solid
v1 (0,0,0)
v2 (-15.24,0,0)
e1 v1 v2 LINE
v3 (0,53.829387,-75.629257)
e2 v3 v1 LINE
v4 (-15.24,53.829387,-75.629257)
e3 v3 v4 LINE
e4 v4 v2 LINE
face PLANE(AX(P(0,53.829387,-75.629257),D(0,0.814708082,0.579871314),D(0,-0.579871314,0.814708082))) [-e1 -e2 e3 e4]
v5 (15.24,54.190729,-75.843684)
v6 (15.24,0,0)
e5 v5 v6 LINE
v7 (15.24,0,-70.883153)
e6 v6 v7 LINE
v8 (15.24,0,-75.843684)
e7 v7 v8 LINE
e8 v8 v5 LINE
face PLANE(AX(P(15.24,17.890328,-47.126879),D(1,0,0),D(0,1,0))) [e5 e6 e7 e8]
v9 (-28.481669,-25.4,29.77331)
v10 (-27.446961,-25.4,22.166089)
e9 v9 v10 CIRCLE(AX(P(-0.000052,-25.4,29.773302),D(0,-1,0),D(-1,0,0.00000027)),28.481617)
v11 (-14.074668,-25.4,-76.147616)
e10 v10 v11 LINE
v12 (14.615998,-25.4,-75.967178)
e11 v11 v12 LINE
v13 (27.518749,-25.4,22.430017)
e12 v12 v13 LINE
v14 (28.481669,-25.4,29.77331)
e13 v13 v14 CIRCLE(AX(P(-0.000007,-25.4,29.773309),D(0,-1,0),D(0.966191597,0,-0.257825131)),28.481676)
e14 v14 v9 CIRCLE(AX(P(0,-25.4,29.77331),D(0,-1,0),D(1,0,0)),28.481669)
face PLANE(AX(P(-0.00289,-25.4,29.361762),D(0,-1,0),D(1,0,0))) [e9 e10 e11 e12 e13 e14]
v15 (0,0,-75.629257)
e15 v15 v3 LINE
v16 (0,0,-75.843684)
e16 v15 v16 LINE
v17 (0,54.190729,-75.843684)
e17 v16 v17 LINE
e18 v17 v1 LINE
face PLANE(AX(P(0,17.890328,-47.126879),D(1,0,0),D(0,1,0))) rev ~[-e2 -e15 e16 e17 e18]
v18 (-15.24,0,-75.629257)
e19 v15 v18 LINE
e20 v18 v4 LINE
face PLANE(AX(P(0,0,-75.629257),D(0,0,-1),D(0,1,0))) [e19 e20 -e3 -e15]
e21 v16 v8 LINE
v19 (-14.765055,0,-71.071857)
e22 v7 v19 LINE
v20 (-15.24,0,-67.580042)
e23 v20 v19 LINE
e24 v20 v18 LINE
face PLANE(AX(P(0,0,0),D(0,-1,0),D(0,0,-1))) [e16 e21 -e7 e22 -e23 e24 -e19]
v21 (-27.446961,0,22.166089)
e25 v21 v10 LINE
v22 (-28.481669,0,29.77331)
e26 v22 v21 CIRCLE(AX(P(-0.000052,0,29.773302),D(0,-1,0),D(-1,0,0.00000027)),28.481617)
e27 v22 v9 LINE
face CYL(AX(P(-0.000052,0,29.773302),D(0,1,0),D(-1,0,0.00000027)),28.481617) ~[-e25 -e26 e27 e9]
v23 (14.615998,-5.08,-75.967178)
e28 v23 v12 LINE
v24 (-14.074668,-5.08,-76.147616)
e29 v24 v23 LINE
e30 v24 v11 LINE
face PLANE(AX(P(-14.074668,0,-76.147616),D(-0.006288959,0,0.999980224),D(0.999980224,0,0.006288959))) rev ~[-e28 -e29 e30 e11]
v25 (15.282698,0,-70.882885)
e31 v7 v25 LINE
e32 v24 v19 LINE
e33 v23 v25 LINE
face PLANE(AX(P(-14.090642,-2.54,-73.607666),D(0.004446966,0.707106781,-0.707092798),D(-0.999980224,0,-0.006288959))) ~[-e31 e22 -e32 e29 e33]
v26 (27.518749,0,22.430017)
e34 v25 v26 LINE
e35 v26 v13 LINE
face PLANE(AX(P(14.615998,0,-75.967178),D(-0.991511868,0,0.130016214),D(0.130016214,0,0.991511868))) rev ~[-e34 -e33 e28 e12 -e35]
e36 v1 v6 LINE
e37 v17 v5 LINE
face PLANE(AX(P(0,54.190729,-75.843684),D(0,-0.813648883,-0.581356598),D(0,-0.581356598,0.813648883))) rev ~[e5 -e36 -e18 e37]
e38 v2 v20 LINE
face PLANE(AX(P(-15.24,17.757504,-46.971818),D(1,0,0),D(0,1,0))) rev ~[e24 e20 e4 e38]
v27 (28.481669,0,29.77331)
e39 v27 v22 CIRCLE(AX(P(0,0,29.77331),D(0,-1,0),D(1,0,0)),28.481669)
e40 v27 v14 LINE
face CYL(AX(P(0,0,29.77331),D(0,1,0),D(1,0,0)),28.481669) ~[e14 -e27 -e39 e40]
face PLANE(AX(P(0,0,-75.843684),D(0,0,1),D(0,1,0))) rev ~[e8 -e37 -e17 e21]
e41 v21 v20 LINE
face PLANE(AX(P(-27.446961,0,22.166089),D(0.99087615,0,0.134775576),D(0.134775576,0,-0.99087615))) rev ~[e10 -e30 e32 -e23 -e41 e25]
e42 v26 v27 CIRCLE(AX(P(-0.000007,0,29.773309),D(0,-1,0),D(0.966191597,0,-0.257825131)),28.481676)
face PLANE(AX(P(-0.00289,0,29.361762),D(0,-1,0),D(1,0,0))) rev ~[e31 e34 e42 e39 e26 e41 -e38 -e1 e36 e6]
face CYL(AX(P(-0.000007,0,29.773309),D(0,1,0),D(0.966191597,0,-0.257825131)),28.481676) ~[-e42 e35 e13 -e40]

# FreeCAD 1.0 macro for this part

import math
import FreeCAD as App
import Part
import Sketcher
Q = App.Units.Quantity


def edges_at(feature, points):
    """Names of the edges that pass closest to the given points."""
    edges = feature.Shape.Edges
    near = lambda p: min(range(len(edges)), key=lambda i: edges[i].distToShape(Part.Vertex(*p))[0])
    return sorted({f"Edge{near(p) + 1}" for p in points})


def add_polygon(sketch, points):
    """Adds a closed chain of lines whose ends are joined by coincident constraints."""
    first, n = sketch.GeometryCount, len(points)
    for a, b in zip(points, points[1:] + points[:1]):
        sketch.addGeometry(Part.LineSegment(App.Vector(*a, 0), App.Vector(*b, 0)), False)
    for i in range(n):
        sketch.addConstraint(Sketcher.Constraint("Coincident", first + i, 2, first + (i + 1) % n, 1))

doc = App.newDocument("Part")
body = doc.addObject("PartDesign::Body", "Body")

# Sketch on XZ plane
sketch1 = body.newObject("Sketcher::SketchObject", "Sketch")
sketch1.AttachmentSupport = (doc.getObject("XZ_Plane"), [""])
sketch1.MapMode = "FlatFace"
sketch1.addGeometry([
    Part.ArcOfCircle(Part.Circle(App.Vector(0, 30, 0), App.Vector(0, 0, 1), 28), math.radians(0), math.radians(180)),  # 0
    Part.ArcOfCircle(Part.Circle(App.Vector(0, 30, 0), App.Vector(0, 0, 1), 28), math.radians(180), math.radians(195.49)),  # 1
    Part.LineSegment(App.Vector(-27, 22, 0), App.Vector(-14, -76, 0)),  # 2
    Part.LineSegment(App.Vector(-14, -76, 0), App.Vector(15, -76, 0)),  # 3
    Part.LineSegment(App.Vector(15, -76, 0), App.Vector(28, 22, 0)),  # 4
    Part.ArcOfCircle(Part.Circle(App.Vector(0, 30, 0), App.Vector(0, 0, 1), 28), math.radians(-14.94), math.radians(0)),  # 5
], False)
sketch1.addConstraint([
    Sketcher.Constraint("Tangent", 0, 2, 1, 1),
    Sketcher.Constraint("Coincident", 1, 2, 2, 1),
    Sketcher.Constraint("Coincident", 2, 2, 3, 1),
    Sketcher.Constraint("Coincident", 3, 2, 4, 1),
    Sketcher.Constraint("Coincident", 4, 2, 5, 1),
    Sketcher.Constraint("Tangent", 5, 2, 0, 1),
    Sketcher.Constraint("Symmetric", 0, 2, 5, 2, -2),
    Sketcher.Constraint("Horizontal", 5, 3, 0, 2),
    Sketcher.Constraint("Radius", 0, 28.481669),
    Sketcher.Constraint("Radius", 1, 28.481617),
    Sketcher.Constraint("Radius", 5, 28.481676),
    Sketcher.Constraint("DistanceX", 0, 2, 2, 2, 14.407001),
    Sketcher.Constraint("DistanceX", 1, 3, 4, 2, 27.518801),
    Sketcher.Constraint("DistanceY", -1, 1, 0, 3, 29.77331),
    Sketcher.Constraint("DistanceX", 1, 2, -1, 1, 27.446961),
    Sketcher.Constraint("DistanceY", 3, 2, -1, 1, 75.967178),
    Sketcher.Constraint("DistanceY", 2, 2, 1, 3, 105.920918),
    Sketcher.Constraint("DistanceX", 1, 3, 3, 2, 14.61605),
])
pad1 = body.newObject("PartDesign::Pad", "Pad")
pad1.Profile = sketch1
pad1.Length = Q("1 in")
doc.recompute()

chamfer = body.newObject("PartDesign::Chamfer", "Chamfer")
chamfer.Base = (pad1, edges_at(pad1, [(0.271, 0, -76.057)]))
chamfer.Size = Q("0.2 in")

# Sketch on YZ plane
sketch2 = body.newObject("Sketcher::SketchObject", "Sketch001")
sketch2.AttachmentSupport = (doc.getObject("YZ_Plane"), [""])
sketch2.MapMode = "FlatFace"
add_polygon(sketch2, [(54, -76), (0, 0), (0, -76)])  # lines 0-2
sketch2.addConstraint([
    Sketcher.Constraint("Vertical", 1),
    Sketcher.Constraint("Horizontal", 2),
    Sketcher.Constraint("Coincident", 0, 2, -1, 1),
    Sketcher.Constraint("DistanceX", 2, 1, 2, 2, 54.190729),
    Sketcher.Constraint("DistanceY", 1, 2, 1, 1, 75.843684),
])
pad2 = body.newObject("PartDesign::Pad", "Pad001")
pad2.Profile = sketch2
pad2.Length = Q("0.6 in")

# Sketch on YZ plane
sketch3 = body.newObject("Sketcher::SketchObject", "Sketch002")
sketch3.AttachmentSupport = (doc.getObject("YZ_Plane"), [""])
sketch3.MapMode = "FlatFace"
add_polygon(sketch3, [(54, -76), (0, 0), (0, -76)])  # lines 0-2
sketch3.addConstraint([
    Sketcher.Constraint("Vertical", 1),
    Sketcher.Constraint("Horizontal", 2),
    Sketcher.Constraint("Coincident", 0, 2, -1, 1),
    Sketcher.Constraint("DistanceX", 2, 1, 2, 2, 53.829387),
    Sketcher.Constraint("DistanceY", 1, 2, 1, 1, 75.629257),
])
pad3 = body.newObject("PartDesign::Pad", "Pad002")
pad3.Profile = sketch3
pad3.Length = Q("0.6 in")
pad3.Reversed = True

doc.recompute()
